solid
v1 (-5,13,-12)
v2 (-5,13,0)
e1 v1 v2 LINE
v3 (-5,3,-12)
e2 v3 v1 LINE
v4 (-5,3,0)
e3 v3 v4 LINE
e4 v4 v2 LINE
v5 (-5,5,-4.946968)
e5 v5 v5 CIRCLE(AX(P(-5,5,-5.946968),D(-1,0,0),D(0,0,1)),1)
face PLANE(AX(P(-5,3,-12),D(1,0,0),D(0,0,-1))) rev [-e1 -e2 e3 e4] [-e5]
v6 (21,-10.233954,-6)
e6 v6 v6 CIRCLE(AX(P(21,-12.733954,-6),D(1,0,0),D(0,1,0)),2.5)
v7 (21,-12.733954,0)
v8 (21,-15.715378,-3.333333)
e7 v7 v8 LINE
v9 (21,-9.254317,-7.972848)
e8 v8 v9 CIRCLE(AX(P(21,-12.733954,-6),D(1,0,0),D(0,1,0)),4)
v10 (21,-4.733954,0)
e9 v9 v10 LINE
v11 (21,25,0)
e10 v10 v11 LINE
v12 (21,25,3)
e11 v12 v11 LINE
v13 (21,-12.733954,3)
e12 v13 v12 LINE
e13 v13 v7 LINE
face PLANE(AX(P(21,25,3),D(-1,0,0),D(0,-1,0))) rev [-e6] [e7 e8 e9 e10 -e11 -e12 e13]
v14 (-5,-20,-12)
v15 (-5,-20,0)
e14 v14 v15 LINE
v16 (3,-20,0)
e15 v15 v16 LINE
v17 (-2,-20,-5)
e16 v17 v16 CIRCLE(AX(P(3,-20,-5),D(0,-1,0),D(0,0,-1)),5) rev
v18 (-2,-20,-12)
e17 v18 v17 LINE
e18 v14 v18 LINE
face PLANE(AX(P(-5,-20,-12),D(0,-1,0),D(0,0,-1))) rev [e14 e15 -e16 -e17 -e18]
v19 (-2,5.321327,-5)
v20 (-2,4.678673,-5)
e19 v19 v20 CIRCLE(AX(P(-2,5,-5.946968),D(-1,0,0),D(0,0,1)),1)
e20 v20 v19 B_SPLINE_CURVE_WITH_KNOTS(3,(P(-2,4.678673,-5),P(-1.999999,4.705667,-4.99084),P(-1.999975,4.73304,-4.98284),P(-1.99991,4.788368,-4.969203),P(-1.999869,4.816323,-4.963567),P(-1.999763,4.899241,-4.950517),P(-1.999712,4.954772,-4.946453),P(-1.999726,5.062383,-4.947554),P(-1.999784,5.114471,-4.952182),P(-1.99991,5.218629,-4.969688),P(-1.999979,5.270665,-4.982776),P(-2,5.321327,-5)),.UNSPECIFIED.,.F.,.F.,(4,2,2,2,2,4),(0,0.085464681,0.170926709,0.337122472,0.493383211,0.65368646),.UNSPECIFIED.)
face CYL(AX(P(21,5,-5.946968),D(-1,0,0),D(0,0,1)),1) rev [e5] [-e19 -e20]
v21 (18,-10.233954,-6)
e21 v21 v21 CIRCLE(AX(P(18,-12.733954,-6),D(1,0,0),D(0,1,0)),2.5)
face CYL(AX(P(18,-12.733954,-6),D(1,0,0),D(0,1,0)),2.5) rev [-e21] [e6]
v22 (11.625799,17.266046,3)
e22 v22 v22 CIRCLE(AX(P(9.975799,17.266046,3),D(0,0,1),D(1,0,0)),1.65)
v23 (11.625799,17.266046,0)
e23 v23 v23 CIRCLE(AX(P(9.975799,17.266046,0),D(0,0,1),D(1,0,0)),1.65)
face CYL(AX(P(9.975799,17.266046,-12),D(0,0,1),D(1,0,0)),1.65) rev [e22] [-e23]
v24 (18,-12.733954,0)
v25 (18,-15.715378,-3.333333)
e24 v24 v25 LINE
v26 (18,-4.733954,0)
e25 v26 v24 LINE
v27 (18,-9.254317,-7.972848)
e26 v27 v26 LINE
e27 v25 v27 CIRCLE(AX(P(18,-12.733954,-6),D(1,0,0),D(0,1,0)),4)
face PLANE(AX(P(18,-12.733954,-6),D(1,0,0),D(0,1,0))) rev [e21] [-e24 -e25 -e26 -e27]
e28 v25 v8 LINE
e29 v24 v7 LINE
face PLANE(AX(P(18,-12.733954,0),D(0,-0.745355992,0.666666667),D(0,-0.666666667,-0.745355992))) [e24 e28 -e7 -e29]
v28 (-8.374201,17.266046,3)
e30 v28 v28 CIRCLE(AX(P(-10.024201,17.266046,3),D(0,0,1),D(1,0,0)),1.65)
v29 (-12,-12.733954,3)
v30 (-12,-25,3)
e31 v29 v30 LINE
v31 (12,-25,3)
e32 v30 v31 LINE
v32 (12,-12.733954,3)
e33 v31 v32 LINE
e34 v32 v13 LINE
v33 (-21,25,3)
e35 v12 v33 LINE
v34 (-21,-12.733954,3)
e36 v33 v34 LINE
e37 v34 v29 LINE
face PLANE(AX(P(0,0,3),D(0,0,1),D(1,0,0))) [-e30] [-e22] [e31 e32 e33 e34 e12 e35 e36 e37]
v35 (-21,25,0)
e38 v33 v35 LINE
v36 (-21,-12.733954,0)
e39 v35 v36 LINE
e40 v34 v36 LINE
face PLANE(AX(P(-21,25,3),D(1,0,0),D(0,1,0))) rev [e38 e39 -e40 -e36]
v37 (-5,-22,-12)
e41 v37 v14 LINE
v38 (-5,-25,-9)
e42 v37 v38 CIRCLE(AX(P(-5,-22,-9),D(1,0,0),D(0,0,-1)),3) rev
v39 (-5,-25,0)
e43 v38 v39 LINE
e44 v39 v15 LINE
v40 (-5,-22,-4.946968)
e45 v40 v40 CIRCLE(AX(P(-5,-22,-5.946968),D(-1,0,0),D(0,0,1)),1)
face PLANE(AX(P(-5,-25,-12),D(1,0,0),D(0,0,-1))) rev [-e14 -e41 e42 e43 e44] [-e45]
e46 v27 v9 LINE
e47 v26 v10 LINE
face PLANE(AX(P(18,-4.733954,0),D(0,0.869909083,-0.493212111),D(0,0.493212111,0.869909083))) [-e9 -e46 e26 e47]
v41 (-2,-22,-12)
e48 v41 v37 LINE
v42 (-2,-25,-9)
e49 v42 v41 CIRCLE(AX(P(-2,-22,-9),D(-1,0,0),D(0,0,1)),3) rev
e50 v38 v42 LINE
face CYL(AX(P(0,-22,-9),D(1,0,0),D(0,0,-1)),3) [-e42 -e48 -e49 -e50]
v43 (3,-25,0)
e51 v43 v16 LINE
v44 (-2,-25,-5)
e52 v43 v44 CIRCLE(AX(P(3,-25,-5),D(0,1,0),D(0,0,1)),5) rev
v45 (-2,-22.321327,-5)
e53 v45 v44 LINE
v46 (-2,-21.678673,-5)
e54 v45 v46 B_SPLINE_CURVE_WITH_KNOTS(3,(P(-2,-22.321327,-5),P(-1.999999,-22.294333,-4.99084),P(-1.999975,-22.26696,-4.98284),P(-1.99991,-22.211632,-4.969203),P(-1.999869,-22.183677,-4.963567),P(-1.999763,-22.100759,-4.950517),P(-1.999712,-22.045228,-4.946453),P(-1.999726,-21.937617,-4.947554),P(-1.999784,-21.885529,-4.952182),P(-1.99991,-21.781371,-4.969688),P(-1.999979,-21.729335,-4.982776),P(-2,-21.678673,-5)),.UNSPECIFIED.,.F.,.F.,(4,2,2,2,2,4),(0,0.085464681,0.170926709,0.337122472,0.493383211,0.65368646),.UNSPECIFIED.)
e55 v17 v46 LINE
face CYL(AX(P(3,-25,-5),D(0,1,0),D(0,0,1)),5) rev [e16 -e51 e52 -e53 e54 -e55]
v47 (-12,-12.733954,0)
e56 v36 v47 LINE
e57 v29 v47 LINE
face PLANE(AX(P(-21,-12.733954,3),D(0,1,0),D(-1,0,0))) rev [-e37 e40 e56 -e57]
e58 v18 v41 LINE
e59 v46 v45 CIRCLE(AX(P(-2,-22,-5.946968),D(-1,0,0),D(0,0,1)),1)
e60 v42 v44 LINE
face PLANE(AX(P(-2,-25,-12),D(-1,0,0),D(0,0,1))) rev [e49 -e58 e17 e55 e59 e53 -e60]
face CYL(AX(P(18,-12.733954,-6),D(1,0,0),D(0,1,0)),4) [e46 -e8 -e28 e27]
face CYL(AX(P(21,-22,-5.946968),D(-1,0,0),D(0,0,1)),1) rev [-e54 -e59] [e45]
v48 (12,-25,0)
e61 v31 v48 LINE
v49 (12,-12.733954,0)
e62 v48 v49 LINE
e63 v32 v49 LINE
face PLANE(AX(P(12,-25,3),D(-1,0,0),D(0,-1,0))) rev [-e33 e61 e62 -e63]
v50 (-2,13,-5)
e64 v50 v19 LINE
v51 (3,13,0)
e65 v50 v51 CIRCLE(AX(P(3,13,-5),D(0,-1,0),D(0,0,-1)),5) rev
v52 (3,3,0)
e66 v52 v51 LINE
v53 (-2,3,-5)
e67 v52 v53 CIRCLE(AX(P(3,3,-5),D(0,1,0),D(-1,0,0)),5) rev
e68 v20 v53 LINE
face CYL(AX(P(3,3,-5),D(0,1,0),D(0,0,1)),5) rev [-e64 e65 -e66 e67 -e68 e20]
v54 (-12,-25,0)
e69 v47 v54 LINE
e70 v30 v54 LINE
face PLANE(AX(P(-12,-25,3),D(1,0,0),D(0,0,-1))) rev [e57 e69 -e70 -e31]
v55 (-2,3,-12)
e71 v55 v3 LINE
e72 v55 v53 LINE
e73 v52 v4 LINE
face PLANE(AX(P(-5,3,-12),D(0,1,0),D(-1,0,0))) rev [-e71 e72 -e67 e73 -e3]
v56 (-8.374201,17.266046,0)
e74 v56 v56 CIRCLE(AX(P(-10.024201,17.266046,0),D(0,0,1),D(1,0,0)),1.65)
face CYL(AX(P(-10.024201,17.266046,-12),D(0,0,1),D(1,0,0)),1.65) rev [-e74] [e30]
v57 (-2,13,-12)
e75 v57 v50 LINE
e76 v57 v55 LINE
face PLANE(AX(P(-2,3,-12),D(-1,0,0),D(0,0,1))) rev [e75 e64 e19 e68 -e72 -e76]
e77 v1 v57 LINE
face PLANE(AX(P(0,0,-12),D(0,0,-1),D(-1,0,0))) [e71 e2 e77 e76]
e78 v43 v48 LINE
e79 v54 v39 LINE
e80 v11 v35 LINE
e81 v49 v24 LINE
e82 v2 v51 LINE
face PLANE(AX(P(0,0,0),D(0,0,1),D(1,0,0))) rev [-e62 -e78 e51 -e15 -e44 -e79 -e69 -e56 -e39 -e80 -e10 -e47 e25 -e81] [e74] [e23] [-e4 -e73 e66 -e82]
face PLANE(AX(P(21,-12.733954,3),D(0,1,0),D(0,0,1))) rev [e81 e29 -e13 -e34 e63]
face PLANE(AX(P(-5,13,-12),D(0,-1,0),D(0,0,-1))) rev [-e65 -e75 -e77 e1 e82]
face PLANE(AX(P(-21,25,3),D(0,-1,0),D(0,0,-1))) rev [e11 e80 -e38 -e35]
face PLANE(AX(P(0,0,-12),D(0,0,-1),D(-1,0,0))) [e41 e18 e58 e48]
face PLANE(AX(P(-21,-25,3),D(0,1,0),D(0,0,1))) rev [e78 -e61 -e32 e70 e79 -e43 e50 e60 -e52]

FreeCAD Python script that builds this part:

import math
import FreeCAD as App
import Part
import Sketcher
from FreeCAD import Vector


def edges_at(feature, points):
    """Names of the edges that pass closest to the given points."""
    edges = feature.Shape.Edges
    near = lambda p: min(range(len(edges)), key=lambda i: edges[i].distToShape(Part.Vertex(*p))[0])
    return sorted({f"Edge{near(p) + 1}" for p in points})

doc = App.newDocument("Part")
body = doc.addObject("PartDesign::Body", "Body")

sketch1 = doc.addObject("Sketcher::SketchObject", "Sketch")
body.addObject(sketch1)
sketch1.AttachmentSupport = (doc.XY_Plane, [""])
sketch1.MapMode = "FlatFace"
sketch1.addGeometry(Part.LineSegment(Vector(-21, 25, 0), Vector(-21, -25, 0)), False)
sketch1.addGeometry(Part.LineSegment(Vector(-21, -25, 0), Vector(21, -25, 0)), False)
sketch1.addGeometry(Part.LineSegment(Vector(21, -25, 0), Vector(21, 25, 0)), False)
sketch1.addGeometry(Part.LineSegment(Vector(21, 25, 0), Vector(-21, 25, 0)), False)
sketch1.addConstraint(Sketcher.Constraint("Coincident", 0, 2, 1, 1))
sketch1.addConstraint(Sketcher.Constraint("Coincident", 1, 2, 2, 1))
sketch1.addConstraint(Sketcher.Constraint("Coincident", 2, 2, 3, 1))
sketch1.addConstraint(Sketcher.Constraint("Coincident", 3, 2, 0, 1))
sketch1.addConstraint(Sketcher.Constraint("Vertical", 0))
sketch1.addConstraint(Sketcher.Constraint("Horizontal", 1))
sketch1.addConstraint(Sketcher.Constraint("Vertical", 2))
sketch1.addConstraint(Sketcher.Constraint("Horizontal", 3))
sketch1.addConstraint(Sketcher.Constraint("Symmetric", 0, 2, 2, 2, -1, 1))
sketch1.addConstraint(Sketcher.Constraint("DistanceX", 1, 1, 1, 2, 42.0))
sketch1.addConstraint(Sketcher.Constraint("DistanceY", 0, 2, 0, 1, 50.0))
pad1 = doc.addObject("PartDesign::Pad", "Pad")
body.addObject(pad1)
pad1.Profile = sketch1
pad1.Length = 3

sketch2 = doc.addObject("Sketcher::SketchObject", "Sketch001")
body.addObject(sketch2)
sketch2.AttachmentSupport = (doc.XY_Plane, [""])
sketch2.MapMode = "FlatFace"
sketch2.addGeometry(Part.LineSegment(Vector(-2, -20, 0), Vector(-2, -25, 0)), False)
sketch2.addGeometry(Part.LineSegment(Vector(-2, -25, 0), Vector(-5, -25, 0)), False)
sketch2.addGeometry(Part.LineSegment(Vector(-5, -25, 0), Vector(-5, -20, 0)), False)
sketch2.addGeometry(Part.LineSegment(Vector(-5, -20, 0), Vector(-2, -20, 0)), False)
sketch2.addGeometry(Part.LineSegment(Vector(-2, 13, 0), Vector(-2, 3, 0)), False)
sketch2.addGeometry(Part.LineSegment(Vector(-2, 3, 0), Vector(-5, 3, 0)), False)
sketch2.addGeometry(Part.LineSegment(Vector(-5, 3, 0), Vector(-5, 13, 0)), False)
sketch2.addGeometry(Part.LineSegment(Vector(-5, 13, 0), Vector(-2, 13, 0)), False)
sketch2.addConstraint(Sketcher.Constraint("Coincident", 0, 2, 1, 1))
sketch2.addConstraint(Sketcher.Constraint("Coincident", 1, 2, 2, 1))
sketch2.addConstraint(Sketcher.Constraint("Coincident", 2, 2, 3, 1))
sketch2.addConstraint(Sketcher.Constraint("Coincident", 3, 2, 0, 1))
sketch2.addConstraint(Sketcher.Constraint("Coincident", 4, 2, 5, 1))
sketch2.addConstraint(Sketcher.Constraint("Coincident", 5, 2, 6, 1))
sketch2.addConstraint(Sketcher.Constraint("Coincident", 6, 2, 7, 1))
sketch2.addConstraint(Sketcher.Constraint("Coincident", 7, 2, 4, 1))
sketch2.addConstraint(Sketcher.Constraint("Vertical", 0))
sketch2.addConstraint(Sketcher.Constraint("Horizontal", 1))
sketch2.addConstraint(Sketcher.Constraint("Vertical", 2))
sketch2.addConstraint(Sketcher.Constraint("Horizontal", 3))
sketch2.addConstraint(Sketcher.Constraint("Vertical", 4))
sketch2.addConstraint(Sketcher.Constraint("Horizontal", 5))
sketch2.addConstraint(Sketcher.Constraint("Vertical", 6))
sketch2.addConstraint(Sketcher.Constraint("Horizontal", 7))
sketch2.addConstraint(Sketcher.Constraint("Vertical", 3, 2, 4, 2))
sketch2.addConstraint(Sketcher.Constraint("Vertical", 2, 2, 5, 2))
sketch2.addConstraint(Sketcher.Constraint("DistanceX", 1, 2, 1, 1, 3.0))
sketch2.addConstraint(Sketcher.Constraint("DistanceY", 0, 2, 0, 1, 5.0))
sketch2.addConstraint(Sketcher.Constraint("DistanceY", 4, 2, 4, 1, 10.0))
sketch2.addConstraint(Sketcher.Constraint("DistanceX", 0, 2, -1, 1, 2.0))
sketch2.addConstraint(Sketcher.Constraint("DistanceY", 0, 2, -1, 1, 25.0))
sketch2.addConstraint(Sketcher.Constraint("DistanceY", -1, 1, 4, 2, 3.0))
pad2 = doc.addObject("PartDesign::Pad", "Pad001")
body.addObject(pad2)
pad2.Profile = sketch2
pad2.Length = 12
pad2.Reversed = True
doc.recompute()

fillet = doc.addObject("PartDesign::Fillet", "Fillet")
body.addObject(fillet)
fillet.Base = (pad2, edges_at(pad2, [(-2, 8, 0)]))
fillet.Radius = 5
doc.recompute()

fillet2 = doc.addObject("PartDesign::Fillet", "Fillet001")
body.addObject(fillet2)
fillet2.Base = (fillet, edges_at(fillet, [(-2, -22.5, 0)]))
fillet2.Radius = 5

sketch3 = doc.addObject("Sketcher::SketchObject", "Sketch002")
body.addObject(sketch3)
sketch3.AttachmentSupport = (doc.YZ_Plane, [""])
sketch3.MapMode = "FlatFace"
sketch3.AttachmentOffset = App.Placement(Vector(0, 0, -5), App.Rotation())
sketch3.addGeometry(Part.Circle(Vector(-22, -5.946968, 0), Vector(0, 0, 1), 1), False)
sketch3.addGeometry(Part.Circle(Vector(5, -5.946968, 0), Vector(0, 0, 1), 1), False)
sketch3.addConstraint(Sketcher.Constraint("Equal", 0, 1))
sketch3.addConstraint(Sketcher.Constraint("Horizontal", 0, 3, 1, 3))
sketch3.addConstraint(Sketcher.Constraint("Diameter", 0, 2.0))
sketch3.addConstraint(Sketcher.Constraint("DistanceX", 0, 3, -1, 1, 22.0))
sketch3.addConstraint(Sketcher.Constraint("DistanceX", -1, 1, 1, 3, 5.0))
sketch3.addConstraint(Sketcher.Constraint("DistanceY", 0, 3, -1, 1, 5.946968))
pocket1 = doc.addObject("PartDesign::Pocket", "Pocket")
body.addObject(pocket1)
pocket1.Profile = sketch3
pocket1.Type = "ThroughAll"
pocket1.Reversed = True

sketch4 = doc.addObject("Sketcher::SketchObject", "Sketch003")
body.addObject(sketch4)
sketch4.AttachmentSupport = (doc.YZ_Plane, [""])
sketch4.MapMode = "FlatFace"
sketch4.AttachmentOffset = App.Placement(Vector(0, 0, 21), App.Rotation())
sketch4.addGeometry(Part.LineSegment(Vector(-4.733954, 0, 0), Vector(-12.733954, 0, 0)), False)
sketch4.addGeometry(Part.LineSegment(Vector(-12.733954, 0, 0), Vector(-15.715378, -3.333333, 0)), False)
sketch4.addGeometry(Part.ArcOfCircle(Part.Circle(Vector(-12.733954, -6, 0), Vector(0, 0, 1), 4), math.radians(138.189685), math.radians(330.448076)), False)
sketch4.addGeometry(Part.LineSegment(Vector(-9.254317, -7.972848, 0), Vector(-4.733954, 0, 0)), False)
sketch4.addGeometry(Part.Circle(Vector(-12.733954, -6, 0), Vector(0, 0, 1), 2.5), False)
sketch4.addConstraint(Sketcher.Constraint("Coincident", 0, 2, 1, 1))
sketch4.addConstraint(Sketcher.Constraint("Tangent", 1, 2, 2, 1))
sketch4.addConstraint(Sketcher.Constraint("Tangent", 2, 2, 3, 1))
sketch4.addConstraint(Sketcher.Constraint("Coincident", 3, 2, 0, 1))
sketch4.addConstraint(Sketcher.Constraint("Horizontal", 0))
sketch4.addConstraint(Sketcher.Constraint("Coincident", 4, 3, 2, 3))
sketch4.addConstraint(Sketcher.Constraint("PointOnObject", 0, 2, -1))
sketch4.addConstraint(Sketcher.Constraint("Vertical", 4, 3, 0, 2))
sketch4.addConstraint(Sketcher.Constraint("Diameter", 4, 5.0))
sketch4.addConstraint(Sketcher.Constraint("Radius", 2, 4.0))
sketch4.addConstraint(Sketcher.Constraint("DistanceX", 0, 2, 0, 1, 8.0))
sketch4.addConstraint(Sketcher.Constraint("DistanceY", 2, 3, -1, 1, 6.0))
sketch4.addConstraint(Sketcher.Constraint("DistanceX", 2, 3, -1, 1, 12.733954))
pad3 = doc.addObject("PartDesign::Pad", "Pad002")
body.addObject(pad3)
pad3.Profile = sketch4
pad3.Length = 3
pad3.Reversed = True

sketch5 = doc.addObject("Sketcher::SketchObject", "Sketch004")
body.addObject(sketch5)
sketch5.AttachmentSupport = (doc.XY_Plane, [""])
sketch5.MapMode = "FlatFace"
sketch5.addGeometry(Part.LineSegment(Vector(21, -12.733954, 0), Vector(21, -25, 0)), False)
sketch5.addGeometry(Part.LineSegment(Vector(21, -25, 0), Vector(12, -25, 0)), False)
sketch5.addGeometry(Part.LineSegment(Vector(12, -25, 0), Vector(12, -12.733954, 0)), False)
sketch5.addGeometry(Part.LineSegment(Vector(12, -12.733954, 0), Vector(21, -12.733954, 0)), False)
sketch5.addGeometry(Part.LineSegment(Vector(-12, -12.733954, 0), Vector(-12, -25, 0)), False)
sketch5.addGeometry(Part.LineSegment(Vector(-12, -25, 0), Vector(-21, -25, 0)), False)
sketch5.addGeometry(Part.LineSegment(Vector(-21, -25, 0), Vector(-21, -12.733954, 0)), False)
sketch5.addGeometry(Part.LineSegment(Vector(-21, -12.733954, 0), Vector(-12, -12.733954, 0)), False)
sketch5.addConstraint(Sketcher.Constraint("Coincident", 0, 2, 1, 1))
sketch5.addConstraint(Sketcher.Constraint("Coincident", 1, 2, 2, 1))
sketch5.addConstraint(Sketcher.Constraint("Coincident", 2, 2, 3, 1))
sketch5.addConstraint(Sketcher.Constraint("Coincident", 3, 2, 0, 1))
sketch5.addConstraint(Sketcher.Constraint("Coincident", 4, 2, 5, 1))
sketch5.addConstraint(Sketcher.Constraint("Coincident", 5, 2, 6, 1))
sketch5.addConstraint(Sketcher.Constraint("Coincident", 6, 2, 7, 1))
sketch5.addConstraint(Sketcher.Constraint("Coincident", 7, 2, 4, 1))
sketch5.addConstraint(Sketcher.Constraint("Vertical", 0))
sketch5.addConstraint(Sketcher.Constraint("Horizontal", 1))
sketch5.addConstraint(Sketcher.Constraint("Vertical", 2))
sketch5.addConstraint(Sketcher.Constraint("Horizontal", 3))
sketch5.addConstraint(Sketcher.Constraint("Vertical", 4))
sketch5.addConstraint(Sketcher.Constraint("Horizontal", 5))
sketch5.addConstraint(Sketcher.Constraint("Vertical", 6))
sketch5.addConstraint(Sketcher.Constraint("Horizontal", 7))
sketch5.addConstraint(Sketcher.Constraint("Symmetric", 1, 2, 4, 2, -2))
sketch5.addConstraint(Sketcher.Constraint("Symmetric", 3, 2, 6, 2, -2))
sketch5.addConstraint(Sketcher.Constraint("DistanceX", 1, 2, 1, 1, 9.0))
sketch5.addConstraint(Sketcher.Constraint("DistanceX", -1, 1, 0, 2, 21.0))
sketch5.addConstraint(Sketcher.Constraint("DistanceY", 0, 2, -1, 1, 25.0))
sketch5.addConstraint(Sketcher.Constraint("DistanceY", 0, 2, 0, 1, 12.266046))
pocket2 = doc.addObject("PartDesign::Pocket", "Pocket001")
body.addObject(pocket2)
pocket2.Profile = sketch5
pocket2.Type = "ThroughAll"
pocket2.Reversed = True

sketch6 = doc.addObject("Sketcher::SketchObject", "Sketch005")
body.addObject(sketch6)
sketch6.AttachmentSupport = (doc.XY_Plane, [""])
sketch6.MapMode = "FlatFace"
sketch6.AttachmentOffset = App.Placement(Vector(0, 0, 3), App.Rotation())
sketch6.addGeometry(Part.Circle(Vector(9.975799, 17.266046, 0), Vector(0, 0, 1), 1.65), False)
sketch6.addGeometry(Part.Circle(Vector(-10.024201, 17.266046, 0), Vector(0, 0, 1), 1.65), False)
sketch6.addConstraint(Sketcher.Constraint("Equal", 0, 1))
sketch6.addConstraint(Sketcher.Constraint("Horizontal", 0, 3, 1, 3))
sketch6.addConstraint(Sketcher.Constraint("Diameter", 0, 3.3))
sketch6.addConstraint(Sketcher.Constraint("DistanceX", 1, 3, 0, 3, 20.0))
sketch6.addConstraint(Sketcher.Constraint("DistanceX", -1, 1, 0, 3, 9.975799))
sketch6.addConstraint(Sketcher.Constraint("DistanceY", -1, 1, 0, 3, 17.266046))
pocket3 = doc.addObject("PartDesign::Pocket", "Pocket002")
body.addObject(pocket3)
pocket3.Profile = sketch6
pocket3.Type = "ThroughAll"
doc.recompute()

fillet3 = doc.addObject("PartDesign::Fillet", "Fillet002")
body.addObject(fillet3)
fillet3.Base = (pocket3, edges_at(pocket3, [(-3.5, -25, -12)]))
fillet3.Radius = 3

doc.recompute()
